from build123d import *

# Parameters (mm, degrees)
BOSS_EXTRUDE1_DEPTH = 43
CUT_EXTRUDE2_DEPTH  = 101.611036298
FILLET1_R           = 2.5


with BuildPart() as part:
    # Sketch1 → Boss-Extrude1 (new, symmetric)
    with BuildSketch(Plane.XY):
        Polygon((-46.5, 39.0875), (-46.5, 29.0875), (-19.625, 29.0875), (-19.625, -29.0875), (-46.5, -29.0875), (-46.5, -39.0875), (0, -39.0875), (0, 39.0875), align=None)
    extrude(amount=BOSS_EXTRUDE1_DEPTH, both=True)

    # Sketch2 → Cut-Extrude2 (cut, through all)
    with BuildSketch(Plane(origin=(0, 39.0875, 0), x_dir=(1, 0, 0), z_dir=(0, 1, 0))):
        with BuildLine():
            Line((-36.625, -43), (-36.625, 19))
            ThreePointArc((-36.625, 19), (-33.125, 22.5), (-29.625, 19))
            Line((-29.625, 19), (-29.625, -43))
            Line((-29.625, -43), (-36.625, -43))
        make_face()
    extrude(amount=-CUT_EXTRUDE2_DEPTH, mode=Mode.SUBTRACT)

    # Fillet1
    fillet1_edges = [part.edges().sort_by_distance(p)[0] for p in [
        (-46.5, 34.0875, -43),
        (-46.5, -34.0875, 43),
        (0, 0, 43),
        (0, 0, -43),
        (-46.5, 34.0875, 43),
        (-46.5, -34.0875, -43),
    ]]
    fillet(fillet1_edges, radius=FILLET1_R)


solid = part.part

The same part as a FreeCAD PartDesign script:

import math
import FreeCAD as App
import Part
import Sketcher

V = App.Vector
Q = App.Units.Quantity


def edges_at(feature, points):
    """Names of the edges that pass closest to the given points."""
    edges = feature.Shape.Edges
    near = lambda p: min(range(len(edges)), key=lambda i: edges[i].distToShape(Part.Vertex(*p))[0])
    return sorted({f"Edge{near(p) + 1}" for p in points})

doc = App.newDocument("Part")
body = doc.addObject("PartDesign::Body", "Body")

sketch1 = body.newObject("Sketcher::SketchObject", "Sketch")
sketch1.AttachmentSupport = (doc.getObject("XY_Plane"), [""])
sketch1.MapMode = "FlatFace"
sketch1.addGeometry([
    Part.LineSegment(V(-46, 39, 0), V(-46, 29, 0)),
    Part.LineSegment(V(-46, 29, 0), V(-20, 29, 0)),
    Part.LineSegment(V(-20, 29, 0), V(-20, -29, 0)),
    Part.LineSegment(V(-20, -29, 0), V(-46, -29, 0)),
    Part.LineSegment(V(-46, -29, 0), V(-46, -39, 0)),
    Part.LineSegment(V(-46, -39, 0), V(0, -39, 0)),
    Part.LineSegment(V(0, -39, 0), V(0, 39, 0)),
    Part.LineSegment(V(0, 39, 0), V(-46, 39, 0)),
], False)
sketch1.addConstraint([
    Sketcher.Constraint("Coincident", 0, 2, 1, 1),
    Sketcher.Constraint("Coincident", 1, 2, 2, 1),
    Sketcher.Constraint("Coincident", 2, 2, 3, 1),
    Sketcher.Constraint("Coincident", 3, 2, 4, 1),
    Sketcher.Constraint("Coincident", 4, 2, 5, 1),
    Sketcher.Constraint("Coincident", 5, 2, 6, 1),
    Sketcher.Constraint("Coincident", 6, 2, 7, 1),
    Sketcher.Constraint("Coincident", 7, 2, 0, 1),
    Sketcher.Constraint("Vertical", 0),
    Sketcher.Constraint("Horizontal", 1),
    Sketcher.Constraint("Vertical", 2),
    Sketcher.Constraint("Horizontal", 3),
    Sketcher.Constraint("Vertical", 4),
    Sketcher.Constraint("Horizontal", 5),
    Sketcher.Constraint("Vertical", 6),
    Sketcher.Constraint("Horizontal", 7),
    Sketcher.Constraint("Symmetric", 5, 2, 6, 2, -1, 1),
    Sketcher.Constraint("Symmetric", 0, 2, 3, 2, -1),
    Sketcher.Constraint("DistanceY", 0, 2, 0, 1, Q("10 mm")),
    Sketcher.Constraint("DistanceX", 5, 1, 5, 2, Q("46.5 mm")),
    Sketcher.Constraint("DistanceX", 1, 1, 1, 2, Q("26.875 mm")),
    Sketcher.Constraint("DistanceY", 2, 2, 2, 1, Q("58.175 mm")),
])
pad1 = body.newObject("PartDesign::Pad", "Pad")
pad1.Profile = sketch1
pad1.Length = 86
pad1.Midplane = True

sketch2 = body.newObject("Sketcher::SketchObject", "Sketch001")
sketch2.AttachmentSupport = (doc.getObject("XZ_Plane"), [""])
sketch2.MapMode = "FlatFace"
sketch2.AttachmentOffset = App.Placement(V(0, 0, -39.0875), App.Rotation())
sketch2.addGeometry([
    Part.LineSegment(V(-36.6, -19, 0), V(-36.6, 43, 0)),
    Part.LineSegment(V(-36.6, 43, 0), V(-29.6, 43, 0)),
    Part.LineSegment(V(-29.6, 43, 0), V(-29.6, -19, 0)),
    Part.ArcOfCircle(Part.Circle(V(-33.1, -19, 0), V(0, 0, 1), 3.5), math.radians(180), math.radians(360)),
], False)
sketch2.addConstraint([
    Sketcher.Constraint("Coincident", 0, 2, 1, 1),
    Sketcher.Constraint("Coincident", 1, 2, 2, 1),
    Sketcher.Constraint("Tangent", 2, 2, 3, 2),
    Sketcher.Constraint("Tangent", 3, 1, 0, 1),
    Sketcher.Constraint("Vertical", 0),
    Sketcher.Constraint("Horizontal", 1),
    Sketcher.Constraint("Vertical", 2),
    Sketcher.Constraint("Radius", 3, Q("3.5 mm")),
    Sketcher.Constraint("DistanceY", 0, 1, 0, 2, Q("62 mm")),
    Sketcher.Constraint("DistanceY", 3, 3, -1, 1, Q("19 mm")),
    Sketcher.Constraint("DistanceX", 3, 3, -1, 1, Q("33.125 mm")),
])
pocket1 = body.newObject("PartDesign::Pocket", "Pocket")
pocket1.Profile = sketch2
pocket1.Type = "ThroughAll"
pocket1.Reversed = True
doc.recompute()

fillet = body.newObject("PartDesign::Fillet", "Fillet")
fillet.Base = (pocket1, edges_at(pocket1, [
    (-46.5, 34.087, -43),
    (-46.5, -34.087, 43),
    (0, 0, 43),
    (0, 0, -43),
    (-46.5, 34.087, 43),
    (-46.5, -34.087, -43),
]))
fillet.Radius = 2.5

doc.recompute()
